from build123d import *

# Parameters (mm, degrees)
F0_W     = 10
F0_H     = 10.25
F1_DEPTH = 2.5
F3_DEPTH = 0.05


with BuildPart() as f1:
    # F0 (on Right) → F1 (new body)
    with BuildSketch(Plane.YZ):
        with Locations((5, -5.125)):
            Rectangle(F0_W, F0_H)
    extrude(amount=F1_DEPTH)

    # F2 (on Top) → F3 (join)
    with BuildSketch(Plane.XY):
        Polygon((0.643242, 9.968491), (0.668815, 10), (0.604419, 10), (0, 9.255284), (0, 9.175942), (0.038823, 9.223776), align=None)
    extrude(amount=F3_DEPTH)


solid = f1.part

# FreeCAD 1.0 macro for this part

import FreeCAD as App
import Part
import Sketcher
from FreeCAD import Vector


def add_polygon(sketch, points):
    """Adds a closed chain of lines whose ends are joined by coincident constraints."""
    first, n = sketch.GeometryCount, len(points)
    for a, b in zip(points, points[1:] + points[:1]):
        sketch.addGeometry(Part.LineSegment(App.Vector(*a, 0), App.Vector(*b, 0)), False)
    for i in range(n):
        sketch.addConstraint(Sketcher.Constraint("Coincident", first + i, 2, first + (i + 1) % n, 1))

doc = App.newDocument("Part")
body = doc.addObject("PartDesign::Body", "Body")

sketch1 = body.newObject("Sketcher::SketchObject", "Sketch")
sketch1.AttachmentSupport = (doc.getObject("YZ_Plane"), [""])
sketch1.MapMode = "FlatFace"
add_polygon(sketch1, [(0, 0), (0, -10), (10, -10), (10, 0)])
sketch1.addConstraint([
    Sketcher.Constraint("Vertical", 0),
    Sketcher.Constraint("Horizontal", 1),
    Sketcher.Constraint("Vertical", 2),
    Sketcher.Constraint("Horizontal", 3),
    Sketcher.Constraint("Coincident", 3, 2, -1, 1),
    Sketcher.Constraint("DistanceX", 1, 1, 1, 2, 10.0),
    Sketcher.Constraint("DistanceY", 0, 2, 0, 1, 10.25),
])
pad1 = body.newObject("PartDesign::Pad", "Pad")
pad1.Profile = sketch1
pad1.Length = 2.5

sketch2 = body.newObject("Sketcher::SketchObject", "Sketch001")
sketch2.AttachmentSupport = (doc.getObject("XY_Plane"), [""])
sketch2.MapMode = "FlatFace"
add_polygon(sketch2, [(0.643, 9.968), (0.669, 10), (0.604, 10), (0, 9.255), (0, 9.176), (0.039, 9.224)])
sketch2.addConstraint([
    Sketcher.Constraint("Horizontal", 1),
    Sketcher.Constraint("Vertical", 3),
    Sketcher.Constraint("PointOnObject", 2, 2, -2),
    Sketcher.Constraint("Parallel", 0, 2),
    Sketcher.Constraint("Parallel", 2, 5),
    Sketcher.Constraint("Equal", 2, 5),
    Sketcher.Constraint("DistanceY", -1, 1, 0, 2, 10.0),
    Sketcher.Constraint("Distance", 0, 0.040581),
    Sketcher.Constraint("DistanceX", 1, 2, 1, 1, 0.064396),
    Sketcher.Constraint("DistanceY", 3, 2, 3, 1, 0.079342),
    Sketcher.Constraint("DistanceX", -1, 1, 1, 2, 0.604419),
    Sketcher.Constraint("DistanceY", -1, 1, 3, 2, 9.175942),
])
pad2 = body.newObject("PartDesign::Pad", "Pad001")
pad2.Profile = sketch2
pad2.Length = 0.05

doc.recompute()
